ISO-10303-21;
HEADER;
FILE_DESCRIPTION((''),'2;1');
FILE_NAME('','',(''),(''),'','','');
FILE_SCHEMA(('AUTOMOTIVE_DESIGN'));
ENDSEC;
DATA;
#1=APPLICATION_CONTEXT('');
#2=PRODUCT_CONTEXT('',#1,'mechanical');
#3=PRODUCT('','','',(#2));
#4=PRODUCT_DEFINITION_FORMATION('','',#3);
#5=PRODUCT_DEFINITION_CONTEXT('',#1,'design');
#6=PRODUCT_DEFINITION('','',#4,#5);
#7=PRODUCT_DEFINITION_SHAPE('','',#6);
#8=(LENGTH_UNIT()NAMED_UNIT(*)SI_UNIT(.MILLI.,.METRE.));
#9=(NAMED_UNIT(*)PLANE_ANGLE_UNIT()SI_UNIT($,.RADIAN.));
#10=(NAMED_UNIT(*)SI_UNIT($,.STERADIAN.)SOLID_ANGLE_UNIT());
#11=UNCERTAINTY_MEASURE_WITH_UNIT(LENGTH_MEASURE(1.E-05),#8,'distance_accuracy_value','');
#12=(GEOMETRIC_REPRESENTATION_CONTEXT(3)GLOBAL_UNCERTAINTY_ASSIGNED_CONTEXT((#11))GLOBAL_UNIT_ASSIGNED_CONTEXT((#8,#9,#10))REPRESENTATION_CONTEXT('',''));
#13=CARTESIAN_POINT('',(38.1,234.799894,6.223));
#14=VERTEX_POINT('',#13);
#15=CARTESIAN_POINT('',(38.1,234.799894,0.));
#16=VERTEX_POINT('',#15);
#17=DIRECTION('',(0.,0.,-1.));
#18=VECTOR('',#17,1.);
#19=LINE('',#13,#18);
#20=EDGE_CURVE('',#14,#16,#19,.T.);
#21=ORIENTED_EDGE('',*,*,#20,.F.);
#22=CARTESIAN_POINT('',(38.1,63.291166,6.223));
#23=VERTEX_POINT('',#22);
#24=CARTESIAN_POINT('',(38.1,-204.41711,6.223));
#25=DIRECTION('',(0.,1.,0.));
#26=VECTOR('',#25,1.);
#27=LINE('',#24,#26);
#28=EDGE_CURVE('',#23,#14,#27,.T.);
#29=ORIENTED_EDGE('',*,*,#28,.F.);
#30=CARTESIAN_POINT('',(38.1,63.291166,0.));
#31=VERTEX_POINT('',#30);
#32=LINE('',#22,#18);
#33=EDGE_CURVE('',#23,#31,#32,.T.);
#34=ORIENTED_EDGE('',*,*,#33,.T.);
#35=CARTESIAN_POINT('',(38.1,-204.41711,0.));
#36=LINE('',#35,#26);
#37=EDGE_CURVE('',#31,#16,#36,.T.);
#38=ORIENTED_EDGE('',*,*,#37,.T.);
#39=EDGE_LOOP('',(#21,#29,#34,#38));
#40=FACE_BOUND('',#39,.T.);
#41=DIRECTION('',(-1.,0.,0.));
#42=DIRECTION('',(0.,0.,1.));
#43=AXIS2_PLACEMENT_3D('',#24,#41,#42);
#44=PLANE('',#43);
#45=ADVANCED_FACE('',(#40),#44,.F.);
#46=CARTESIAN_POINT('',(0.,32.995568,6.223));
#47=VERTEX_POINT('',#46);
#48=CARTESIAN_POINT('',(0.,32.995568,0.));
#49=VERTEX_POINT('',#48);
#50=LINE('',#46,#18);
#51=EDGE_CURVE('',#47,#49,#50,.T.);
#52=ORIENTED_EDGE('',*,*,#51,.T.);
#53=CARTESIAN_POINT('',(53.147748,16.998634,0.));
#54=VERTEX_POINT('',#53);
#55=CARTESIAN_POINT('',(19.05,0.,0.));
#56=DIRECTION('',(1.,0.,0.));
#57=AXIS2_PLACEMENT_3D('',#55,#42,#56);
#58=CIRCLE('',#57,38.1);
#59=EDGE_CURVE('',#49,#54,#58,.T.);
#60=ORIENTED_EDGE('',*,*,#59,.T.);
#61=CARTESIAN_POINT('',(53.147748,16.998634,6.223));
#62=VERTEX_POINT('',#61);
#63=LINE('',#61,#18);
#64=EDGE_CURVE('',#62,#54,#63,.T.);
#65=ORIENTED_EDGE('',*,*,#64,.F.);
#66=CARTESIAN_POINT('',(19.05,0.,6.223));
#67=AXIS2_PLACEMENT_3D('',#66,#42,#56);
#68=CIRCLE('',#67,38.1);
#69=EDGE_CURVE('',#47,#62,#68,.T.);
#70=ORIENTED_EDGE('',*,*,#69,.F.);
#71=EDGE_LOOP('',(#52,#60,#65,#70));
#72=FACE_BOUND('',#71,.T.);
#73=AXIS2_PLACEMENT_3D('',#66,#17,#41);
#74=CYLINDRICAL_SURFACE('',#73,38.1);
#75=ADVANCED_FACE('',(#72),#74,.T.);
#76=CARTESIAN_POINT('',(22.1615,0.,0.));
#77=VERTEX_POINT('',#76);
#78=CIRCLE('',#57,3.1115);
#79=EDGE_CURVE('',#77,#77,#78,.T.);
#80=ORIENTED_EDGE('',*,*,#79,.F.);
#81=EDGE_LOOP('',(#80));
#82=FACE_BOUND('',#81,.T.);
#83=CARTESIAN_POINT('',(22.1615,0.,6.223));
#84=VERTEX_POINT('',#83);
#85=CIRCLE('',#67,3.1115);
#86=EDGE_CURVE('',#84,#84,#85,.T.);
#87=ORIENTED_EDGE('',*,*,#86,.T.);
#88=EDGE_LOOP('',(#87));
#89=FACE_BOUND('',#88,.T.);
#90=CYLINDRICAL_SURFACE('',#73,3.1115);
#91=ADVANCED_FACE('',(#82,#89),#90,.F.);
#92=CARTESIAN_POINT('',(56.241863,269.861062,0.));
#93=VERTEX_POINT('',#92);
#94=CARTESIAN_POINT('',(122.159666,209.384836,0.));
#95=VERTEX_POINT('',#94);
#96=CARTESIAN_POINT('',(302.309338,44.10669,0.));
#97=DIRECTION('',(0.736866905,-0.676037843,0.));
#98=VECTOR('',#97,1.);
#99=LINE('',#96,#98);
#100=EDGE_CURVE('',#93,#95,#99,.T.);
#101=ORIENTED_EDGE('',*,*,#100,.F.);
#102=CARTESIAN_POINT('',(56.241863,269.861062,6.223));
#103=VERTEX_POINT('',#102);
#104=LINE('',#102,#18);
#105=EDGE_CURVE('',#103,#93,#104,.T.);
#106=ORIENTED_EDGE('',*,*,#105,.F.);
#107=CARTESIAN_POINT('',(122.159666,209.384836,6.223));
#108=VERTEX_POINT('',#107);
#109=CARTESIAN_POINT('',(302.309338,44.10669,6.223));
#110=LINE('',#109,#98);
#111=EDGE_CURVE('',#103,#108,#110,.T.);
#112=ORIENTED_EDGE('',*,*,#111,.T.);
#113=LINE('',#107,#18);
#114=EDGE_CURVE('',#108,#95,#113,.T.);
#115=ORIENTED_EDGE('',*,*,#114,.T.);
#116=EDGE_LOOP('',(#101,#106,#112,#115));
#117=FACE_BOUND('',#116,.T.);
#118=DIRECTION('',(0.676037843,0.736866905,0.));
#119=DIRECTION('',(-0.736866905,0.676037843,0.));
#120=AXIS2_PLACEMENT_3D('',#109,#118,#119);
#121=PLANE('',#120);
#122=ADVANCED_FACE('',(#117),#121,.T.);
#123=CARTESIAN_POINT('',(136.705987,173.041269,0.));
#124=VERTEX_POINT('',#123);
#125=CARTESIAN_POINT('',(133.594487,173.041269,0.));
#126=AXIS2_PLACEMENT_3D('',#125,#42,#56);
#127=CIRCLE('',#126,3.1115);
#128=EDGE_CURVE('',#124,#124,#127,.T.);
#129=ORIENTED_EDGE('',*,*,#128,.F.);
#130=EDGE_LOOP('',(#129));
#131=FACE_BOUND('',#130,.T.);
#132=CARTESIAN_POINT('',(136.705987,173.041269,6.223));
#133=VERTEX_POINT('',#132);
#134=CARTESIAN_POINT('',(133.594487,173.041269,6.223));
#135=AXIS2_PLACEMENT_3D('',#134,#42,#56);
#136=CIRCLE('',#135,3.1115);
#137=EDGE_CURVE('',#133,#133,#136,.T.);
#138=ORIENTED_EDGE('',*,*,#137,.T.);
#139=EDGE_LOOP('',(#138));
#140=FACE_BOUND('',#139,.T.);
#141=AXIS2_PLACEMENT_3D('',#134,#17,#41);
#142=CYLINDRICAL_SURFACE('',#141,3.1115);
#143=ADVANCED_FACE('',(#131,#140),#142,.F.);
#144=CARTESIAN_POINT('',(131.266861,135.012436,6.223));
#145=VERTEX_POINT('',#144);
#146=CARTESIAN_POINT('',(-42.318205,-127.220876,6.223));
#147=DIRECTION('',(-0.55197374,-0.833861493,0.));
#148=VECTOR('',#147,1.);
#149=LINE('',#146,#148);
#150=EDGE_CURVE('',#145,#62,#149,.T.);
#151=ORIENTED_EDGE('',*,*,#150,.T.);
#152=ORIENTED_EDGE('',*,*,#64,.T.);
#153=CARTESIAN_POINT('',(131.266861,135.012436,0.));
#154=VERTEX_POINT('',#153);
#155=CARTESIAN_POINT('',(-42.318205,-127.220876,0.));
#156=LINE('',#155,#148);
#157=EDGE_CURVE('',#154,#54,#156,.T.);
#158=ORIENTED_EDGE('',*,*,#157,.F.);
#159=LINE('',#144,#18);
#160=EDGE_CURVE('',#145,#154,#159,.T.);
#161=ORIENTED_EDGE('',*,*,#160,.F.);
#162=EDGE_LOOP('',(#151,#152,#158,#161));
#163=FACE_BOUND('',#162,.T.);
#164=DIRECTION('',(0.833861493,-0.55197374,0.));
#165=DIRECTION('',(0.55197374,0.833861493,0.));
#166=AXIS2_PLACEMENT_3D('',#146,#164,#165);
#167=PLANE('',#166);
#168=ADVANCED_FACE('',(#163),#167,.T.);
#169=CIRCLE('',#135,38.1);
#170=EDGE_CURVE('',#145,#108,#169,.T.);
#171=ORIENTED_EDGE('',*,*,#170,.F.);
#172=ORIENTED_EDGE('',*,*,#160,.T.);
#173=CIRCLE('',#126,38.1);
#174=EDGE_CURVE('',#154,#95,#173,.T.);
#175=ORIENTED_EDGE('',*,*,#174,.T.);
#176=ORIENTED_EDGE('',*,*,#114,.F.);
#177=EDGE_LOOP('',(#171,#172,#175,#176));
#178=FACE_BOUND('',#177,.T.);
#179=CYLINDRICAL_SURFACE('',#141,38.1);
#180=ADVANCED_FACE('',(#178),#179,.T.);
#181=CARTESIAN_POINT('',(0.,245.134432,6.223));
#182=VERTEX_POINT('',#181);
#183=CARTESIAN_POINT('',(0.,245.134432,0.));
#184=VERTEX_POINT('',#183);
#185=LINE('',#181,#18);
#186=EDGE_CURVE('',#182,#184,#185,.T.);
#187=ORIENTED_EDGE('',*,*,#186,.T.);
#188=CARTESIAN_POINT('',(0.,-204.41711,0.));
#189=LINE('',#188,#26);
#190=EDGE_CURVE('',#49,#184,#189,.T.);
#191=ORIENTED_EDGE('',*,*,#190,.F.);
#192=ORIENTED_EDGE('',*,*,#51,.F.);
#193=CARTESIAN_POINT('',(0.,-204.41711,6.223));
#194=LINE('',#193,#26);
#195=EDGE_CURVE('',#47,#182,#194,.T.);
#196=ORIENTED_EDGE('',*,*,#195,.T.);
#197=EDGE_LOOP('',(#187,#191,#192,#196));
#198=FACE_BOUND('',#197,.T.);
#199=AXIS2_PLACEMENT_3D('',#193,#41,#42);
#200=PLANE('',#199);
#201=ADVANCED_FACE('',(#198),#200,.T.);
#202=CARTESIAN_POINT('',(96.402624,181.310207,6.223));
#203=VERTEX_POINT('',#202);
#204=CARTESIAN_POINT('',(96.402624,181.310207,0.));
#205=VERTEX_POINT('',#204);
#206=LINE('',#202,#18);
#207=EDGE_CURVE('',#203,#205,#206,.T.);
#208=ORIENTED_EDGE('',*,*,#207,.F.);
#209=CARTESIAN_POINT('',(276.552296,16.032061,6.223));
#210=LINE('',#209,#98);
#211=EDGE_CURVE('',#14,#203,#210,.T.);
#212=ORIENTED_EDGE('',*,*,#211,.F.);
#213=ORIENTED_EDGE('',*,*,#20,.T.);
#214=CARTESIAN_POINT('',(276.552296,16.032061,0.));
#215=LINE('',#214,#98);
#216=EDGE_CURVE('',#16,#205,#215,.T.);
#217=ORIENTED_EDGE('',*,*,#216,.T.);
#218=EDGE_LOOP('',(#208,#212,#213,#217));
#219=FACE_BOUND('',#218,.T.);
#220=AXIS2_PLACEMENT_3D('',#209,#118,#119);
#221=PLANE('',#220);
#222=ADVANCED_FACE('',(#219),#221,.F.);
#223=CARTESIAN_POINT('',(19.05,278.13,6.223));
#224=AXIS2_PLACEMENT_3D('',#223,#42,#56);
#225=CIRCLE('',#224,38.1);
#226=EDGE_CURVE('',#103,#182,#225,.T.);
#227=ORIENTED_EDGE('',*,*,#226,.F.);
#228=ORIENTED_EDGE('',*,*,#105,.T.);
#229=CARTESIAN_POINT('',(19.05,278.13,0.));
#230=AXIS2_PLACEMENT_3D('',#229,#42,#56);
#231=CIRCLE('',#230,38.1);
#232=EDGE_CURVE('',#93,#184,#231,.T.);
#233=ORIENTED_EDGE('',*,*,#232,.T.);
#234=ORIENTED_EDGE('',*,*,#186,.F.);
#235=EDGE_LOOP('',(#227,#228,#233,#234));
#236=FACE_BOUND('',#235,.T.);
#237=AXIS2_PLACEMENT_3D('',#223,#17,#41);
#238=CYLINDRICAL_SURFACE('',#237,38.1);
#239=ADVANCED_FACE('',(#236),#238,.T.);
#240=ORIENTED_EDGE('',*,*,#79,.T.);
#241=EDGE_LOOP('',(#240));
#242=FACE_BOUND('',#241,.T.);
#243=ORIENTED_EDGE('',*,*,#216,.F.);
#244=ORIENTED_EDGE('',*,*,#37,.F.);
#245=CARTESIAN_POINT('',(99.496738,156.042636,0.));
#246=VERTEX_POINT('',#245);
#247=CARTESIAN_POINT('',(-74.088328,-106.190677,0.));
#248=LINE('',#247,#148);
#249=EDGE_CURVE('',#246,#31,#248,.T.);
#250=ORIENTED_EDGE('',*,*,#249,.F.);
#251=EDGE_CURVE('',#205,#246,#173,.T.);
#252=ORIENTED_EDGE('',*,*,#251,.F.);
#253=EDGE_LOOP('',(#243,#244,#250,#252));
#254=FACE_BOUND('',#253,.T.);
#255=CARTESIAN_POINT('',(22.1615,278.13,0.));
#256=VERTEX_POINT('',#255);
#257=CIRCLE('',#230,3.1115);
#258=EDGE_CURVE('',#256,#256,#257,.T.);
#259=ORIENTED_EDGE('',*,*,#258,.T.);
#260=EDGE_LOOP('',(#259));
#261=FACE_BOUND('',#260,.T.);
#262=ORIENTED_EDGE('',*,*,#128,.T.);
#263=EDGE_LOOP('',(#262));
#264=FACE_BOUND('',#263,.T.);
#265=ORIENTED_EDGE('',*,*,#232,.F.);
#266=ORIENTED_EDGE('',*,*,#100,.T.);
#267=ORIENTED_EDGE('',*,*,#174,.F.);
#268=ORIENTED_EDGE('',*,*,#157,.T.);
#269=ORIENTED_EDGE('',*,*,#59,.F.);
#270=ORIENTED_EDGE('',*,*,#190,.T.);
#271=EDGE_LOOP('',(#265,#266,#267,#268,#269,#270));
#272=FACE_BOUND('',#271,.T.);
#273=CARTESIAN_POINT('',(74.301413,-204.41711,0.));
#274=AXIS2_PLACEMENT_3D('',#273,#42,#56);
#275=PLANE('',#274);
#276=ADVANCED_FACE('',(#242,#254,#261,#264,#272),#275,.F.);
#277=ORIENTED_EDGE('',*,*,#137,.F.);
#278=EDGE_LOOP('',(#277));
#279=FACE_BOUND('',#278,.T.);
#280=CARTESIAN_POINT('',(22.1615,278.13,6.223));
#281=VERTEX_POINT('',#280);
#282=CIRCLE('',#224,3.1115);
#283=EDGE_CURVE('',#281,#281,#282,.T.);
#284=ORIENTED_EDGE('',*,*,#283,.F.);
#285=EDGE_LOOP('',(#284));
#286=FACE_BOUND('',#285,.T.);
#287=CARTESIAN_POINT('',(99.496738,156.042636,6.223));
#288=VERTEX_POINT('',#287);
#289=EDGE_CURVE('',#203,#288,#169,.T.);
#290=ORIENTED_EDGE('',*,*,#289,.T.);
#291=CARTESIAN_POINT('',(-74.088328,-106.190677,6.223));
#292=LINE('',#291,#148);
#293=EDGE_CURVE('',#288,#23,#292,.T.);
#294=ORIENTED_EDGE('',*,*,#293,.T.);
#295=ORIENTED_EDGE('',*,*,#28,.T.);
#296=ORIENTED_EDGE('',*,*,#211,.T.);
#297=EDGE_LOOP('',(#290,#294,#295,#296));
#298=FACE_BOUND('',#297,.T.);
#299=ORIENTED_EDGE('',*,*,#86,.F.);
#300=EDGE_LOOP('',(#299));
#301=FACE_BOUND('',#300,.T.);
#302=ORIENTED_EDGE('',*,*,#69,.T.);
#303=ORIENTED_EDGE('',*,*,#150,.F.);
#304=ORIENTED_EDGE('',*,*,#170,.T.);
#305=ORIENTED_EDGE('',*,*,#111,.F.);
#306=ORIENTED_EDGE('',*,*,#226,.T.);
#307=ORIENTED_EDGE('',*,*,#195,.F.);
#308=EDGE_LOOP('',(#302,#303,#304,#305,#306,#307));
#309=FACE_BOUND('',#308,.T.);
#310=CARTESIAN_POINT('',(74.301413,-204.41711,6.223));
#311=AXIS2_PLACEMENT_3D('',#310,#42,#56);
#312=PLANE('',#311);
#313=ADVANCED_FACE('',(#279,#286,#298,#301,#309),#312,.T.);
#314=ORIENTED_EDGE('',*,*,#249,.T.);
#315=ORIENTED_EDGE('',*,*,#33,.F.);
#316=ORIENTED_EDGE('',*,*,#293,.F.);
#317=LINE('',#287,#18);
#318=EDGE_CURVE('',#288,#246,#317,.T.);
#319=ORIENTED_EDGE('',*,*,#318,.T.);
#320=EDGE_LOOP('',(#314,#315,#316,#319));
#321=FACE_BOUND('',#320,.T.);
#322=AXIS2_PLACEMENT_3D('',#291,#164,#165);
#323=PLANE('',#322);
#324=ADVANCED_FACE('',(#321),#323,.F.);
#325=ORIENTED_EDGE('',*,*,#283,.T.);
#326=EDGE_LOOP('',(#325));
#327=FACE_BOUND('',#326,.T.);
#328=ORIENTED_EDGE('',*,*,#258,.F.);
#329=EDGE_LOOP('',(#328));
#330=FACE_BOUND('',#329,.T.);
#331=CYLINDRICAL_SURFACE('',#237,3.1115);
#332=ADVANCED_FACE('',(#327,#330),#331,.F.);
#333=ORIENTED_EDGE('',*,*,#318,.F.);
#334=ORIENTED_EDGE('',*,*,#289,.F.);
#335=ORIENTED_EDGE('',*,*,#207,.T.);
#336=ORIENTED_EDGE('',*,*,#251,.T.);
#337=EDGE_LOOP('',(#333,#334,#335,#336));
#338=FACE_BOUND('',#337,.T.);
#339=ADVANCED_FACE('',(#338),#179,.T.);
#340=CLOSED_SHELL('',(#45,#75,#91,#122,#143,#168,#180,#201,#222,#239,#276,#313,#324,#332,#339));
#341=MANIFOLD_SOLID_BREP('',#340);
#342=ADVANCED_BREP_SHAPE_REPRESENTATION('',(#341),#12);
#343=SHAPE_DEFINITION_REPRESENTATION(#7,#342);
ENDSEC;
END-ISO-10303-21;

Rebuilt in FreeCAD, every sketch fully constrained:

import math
import FreeCAD as App
import Part
import Sketcher

V = App.Vector
Q = App.Units.Quantity

doc = App.newDocument("Part")
body = doc.addObject("PartDesign::Body", "Body")

# Sketch on XY plane
sketch1 = body.newObject("Sketcher::SketchObject", "Sketch")
sketch1.AttachmentSupport = (doc.getObject("XY_Plane"), [""])
sketch1.MapMode = "FlatFace"
sketch1.addGeometry([
    Part.ArcOfCircle(Part.Circle(V(19.1, 278.1, 0), V(0, 0, 1), 38.1), math.radians(-13), math.radians(240)),  # 0
    Part.LineSegment(V(0, 245.1, 0), V(0, 33, 0)),  # 1
    Part.ArcOfCircle(Part.Circle(V(19.1, 0, 0), V(0, 0, 1), 38.1), math.radians(120), math.radians(386)),  # 2
    Part.LineSegment(V(53.1, 17, 0), V(131.3, 135, 0)),  # 3
    Part.ArcOfCircle(Part.Circle(V(133.6, 173, 0), V(0, 0, 1), 38.1), math.radians(-94), math.radians(107)),  # 4
    Part.LineSegment(V(122.2, 209.4, 0), V(56.2, 269.9, 0)),  # 5
    Part.Circle(V(19.1, 0, 0), V(0, 0, 1), 3.1),  # 6
    Part.ArcOfCircle(Part.Circle(V(133.6, 173, 0), V(0, 0, 1), 38.1), math.radians(167), math.radians(206)),  # 7
    Part.LineSegment(V(99.5, 156, 0), V(38.1, 63.3, 0)),  # 8
    Part.LineSegment(V(38.1, 63.3, 0), V(38.1, 234.8, 0)),  # 9
    Part.LineSegment(V(38.1, 234.8, 0), V(96.4, 181.3, 0)),  # 10
    Part.Circle(V(19.1, 278.1, 0), V(0, 0, 1), 3.1),  # 11
    Part.Circle(V(133.6, 173, 0), V(0, 0, 1), 3.1),  # 12
], False)
sketch1.addConstraint([
    Sketcher.Constraint("Coincident", 0, 2, 1, 1),
    Sketcher.Constraint("Coincident", 1, 2, 2, 1),
    Sketcher.Constraint("Coincident", 2, 2, 3, 1),
    Sketcher.Constraint("Coincident", 3, 2, 4, 1),
    Sketcher.Constraint("Coincident", 4, 2, 5, 1),
    Sketcher.Constraint("Coincident", 5, 2, 0, 1),
    Sketcher.Constraint("Coincident", 7, 2, 8, 1),
    Sketcher.Constraint("Coincident", 8, 2, 9, 1),
    Sketcher.Constraint("Coincident", 9, 2, 10, 1),
    Sketcher.Constraint("Coincident", 10, 2, 7, 1),
    Sketcher.Constraint("Vertical", 1),
    Sketcher.Constraint("Vertical", 9),
    Sketcher.Constraint("Coincident", 6, 3, 2, 3),
    Sketcher.Constraint("Coincident", 7, 3, 4, 3),
    Sketcher.Constraint("Coincident", 11, 3, 0, 3),
    Sketcher.Constraint("Coincident", 12, 3, 4, 3),
    Sketcher.Constraint("Equal", 0, 2),
    Sketcher.Constraint("Equal", 2, 4),
    Sketcher.Constraint("Equal", 4, 7),
    Sketcher.Constraint("Equal", 6, 11),
    Sketcher.Constraint("Equal", 11, 12),
    Sketcher.Constraint("PointOnObject", 2, 3, -1),
    Sketcher.Constraint("PointOnObject", 0, 2, -2),
    Sketcher.Constraint("Parallel", 3, 8),
    Sketcher.Constraint("Parallel", 5, 10),
    Sketcher.Constraint("Vertical", 0, 3, 2, 3),
    Sketcher.Constraint("Radius", 0, Q("1.5 in")),
    Sketcher.Constraint("Diameter", 6, Q("0.245 in")),
    Sketcher.Constraint("DistanceX", -1, 1, 8, 2, Q("1.5 in")),
    Sketcher.Constraint("DistanceX", -1, 1, 0, 3, Q("0.75 in")),
    Sketcher.Constraint("DistanceY", -1, 1, 0, 3, Q("10.95 in")),
    Sketcher.Constraint("DistanceY", 9, 1, 9, 2, 171.508729),
    Sketcher.Constraint("DistanceY", 1, 2, 4, 3, 140.045702),
    Sketcher.Constraint("DistanceY", 3, 2, 4, 2, 74.3724),
    Sketcher.Constraint("DistanceY", 3, 2, 7, 2, 21.030199),
    Sketcher.Constraint("DistanceX", -1, 1, 2, 2, 53.147748),
    Sketcher.Constraint("DistanceX", -1, 1, 3, 2, 131.266861),
    Sketcher.Constraint("DistanceY", -1, 1, 5, 2, 269.861062),
    Sketcher.Constraint("DistanceX", -1, 1, 7, 2, 99.496738),
])
pad1 = body.newObject("PartDesign::Pad", "Pad")
pad1.Profile = sketch1
pad1.Length = Q("0.245 in")

doc.recompute()
